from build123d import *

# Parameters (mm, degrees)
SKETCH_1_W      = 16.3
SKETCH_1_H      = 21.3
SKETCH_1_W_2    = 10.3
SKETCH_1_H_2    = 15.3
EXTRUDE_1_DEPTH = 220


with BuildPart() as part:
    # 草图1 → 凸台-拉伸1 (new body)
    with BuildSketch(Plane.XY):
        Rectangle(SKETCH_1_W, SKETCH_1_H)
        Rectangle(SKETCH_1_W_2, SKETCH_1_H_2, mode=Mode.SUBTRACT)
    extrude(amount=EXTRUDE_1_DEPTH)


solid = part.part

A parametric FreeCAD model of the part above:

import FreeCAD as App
import Part
import Sketcher

V = App.Vector

doc = App.newDocument("Part")
body = doc.addObject("PartDesign::Body", "Body")

# Sketch on XY plane
sketch1 = body.newObject("Sketcher::SketchObject", "Sketch")
sketch1.AttachmentSupport = (doc.getObject("XY_Plane"), [""])
sketch1.MapMode = "FlatFace"
sketch1.addGeometry(Part.LineSegment(V(-8, 11, 0), V(-8, -11, 0)), False)
sketch1.addGeometry(Part.LineSegment(V(-8, -11, 0), V(8, -11, 0)), False)
sketch1.addGeometry(Part.LineSegment(V(8, -11, 0), V(8, 11, 0)), False)
sketch1.addGeometry(Part.LineSegment(V(8, 11, 0), V(-8, 11, 0)), False)
sketch1.addGeometry(Part.LineSegment(V(5, -8, 0), V(-5, -8, 0)), False)
sketch1.addGeometry(Part.LineSegment(V(-5, -8, 0), V(-5, 8, 0)), False)
sketch1.addGeometry(Part.LineSegment(V(-5, 8, 0), V(5, 8, 0)), False)
sketch1.addGeometry(Part.LineSegment(V(5, 8, 0), V(5, -8, 0)), False)
sketch1.addConstraint(Sketcher.Constraint("Coincident", 0, 2, 1, 1))
sketch1.addConstraint(Sketcher.Constraint("Coincident", 1, 2, 2, 1))
sketch1.addConstraint(Sketcher.Constraint("Coincident", 2, 2, 3, 1))
sketch1.addConstraint(Sketcher.Constraint("Coincident", 3, 2, 0, 1))
sketch1.addConstraint(Sketcher.Constraint("Coincident", 4, 2, 5, 1))
sketch1.addConstraint(Sketcher.Constraint("Coincident", 5, 2, 6, 1))
sketch1.addConstraint(Sketcher.Constraint("Coincident", 6, 2, 7, 1))
sketch1.addConstraint(Sketcher.Constraint("Coincident", 7, 2, 4, 1))
sketch1.addConstraint(Sketcher.Constraint("Vertical", 0))
sketch1.addConstraint(Sketcher.Constraint("Horizontal", 1))
sketch1.addConstraint(Sketcher.Constraint("Vertical", 2))
sketch1.addConstraint(Sketcher.Constraint("Horizontal", 3))
sketch1.addConstraint(Sketcher.Constraint("Horizontal", 4))
sketch1.addConstraint(Sketcher.Constraint("Vertical", 5))
sketch1.addConstraint(Sketcher.Constraint("Horizontal", 6))
sketch1.addConstraint(Sketcher.Constraint("Vertical", 7))
sketch1.addConstraint(Sketcher.Constraint("Symmetric", 0, 2, 2, 2, -1, 1))
sketch1.addConstraint(Sketcher.Constraint("Symmetric", 4, 2, 6, 2, -1, 1))
sketch1.addConstraint(Sketcher.Constraint("DistanceX", 1, 1, 1, 2, 16.3))
sketch1.addConstraint(Sketcher.Constraint("DistanceX", 4, 2, 4, 1, 10.3))
sketch1.addConstraint(Sketcher.Constraint("DistanceY", 0, 2, 0, 1, 21.3))
sketch1.addConstraint(Sketcher.Constraint("DistanceY", 5, 1, 5, 2, 15.3))
pad1 = body.newObject("PartDesign::Pad", "Pad")
pad1.Profile = sketch1
pad1.Length = 220

doc.recompute()
